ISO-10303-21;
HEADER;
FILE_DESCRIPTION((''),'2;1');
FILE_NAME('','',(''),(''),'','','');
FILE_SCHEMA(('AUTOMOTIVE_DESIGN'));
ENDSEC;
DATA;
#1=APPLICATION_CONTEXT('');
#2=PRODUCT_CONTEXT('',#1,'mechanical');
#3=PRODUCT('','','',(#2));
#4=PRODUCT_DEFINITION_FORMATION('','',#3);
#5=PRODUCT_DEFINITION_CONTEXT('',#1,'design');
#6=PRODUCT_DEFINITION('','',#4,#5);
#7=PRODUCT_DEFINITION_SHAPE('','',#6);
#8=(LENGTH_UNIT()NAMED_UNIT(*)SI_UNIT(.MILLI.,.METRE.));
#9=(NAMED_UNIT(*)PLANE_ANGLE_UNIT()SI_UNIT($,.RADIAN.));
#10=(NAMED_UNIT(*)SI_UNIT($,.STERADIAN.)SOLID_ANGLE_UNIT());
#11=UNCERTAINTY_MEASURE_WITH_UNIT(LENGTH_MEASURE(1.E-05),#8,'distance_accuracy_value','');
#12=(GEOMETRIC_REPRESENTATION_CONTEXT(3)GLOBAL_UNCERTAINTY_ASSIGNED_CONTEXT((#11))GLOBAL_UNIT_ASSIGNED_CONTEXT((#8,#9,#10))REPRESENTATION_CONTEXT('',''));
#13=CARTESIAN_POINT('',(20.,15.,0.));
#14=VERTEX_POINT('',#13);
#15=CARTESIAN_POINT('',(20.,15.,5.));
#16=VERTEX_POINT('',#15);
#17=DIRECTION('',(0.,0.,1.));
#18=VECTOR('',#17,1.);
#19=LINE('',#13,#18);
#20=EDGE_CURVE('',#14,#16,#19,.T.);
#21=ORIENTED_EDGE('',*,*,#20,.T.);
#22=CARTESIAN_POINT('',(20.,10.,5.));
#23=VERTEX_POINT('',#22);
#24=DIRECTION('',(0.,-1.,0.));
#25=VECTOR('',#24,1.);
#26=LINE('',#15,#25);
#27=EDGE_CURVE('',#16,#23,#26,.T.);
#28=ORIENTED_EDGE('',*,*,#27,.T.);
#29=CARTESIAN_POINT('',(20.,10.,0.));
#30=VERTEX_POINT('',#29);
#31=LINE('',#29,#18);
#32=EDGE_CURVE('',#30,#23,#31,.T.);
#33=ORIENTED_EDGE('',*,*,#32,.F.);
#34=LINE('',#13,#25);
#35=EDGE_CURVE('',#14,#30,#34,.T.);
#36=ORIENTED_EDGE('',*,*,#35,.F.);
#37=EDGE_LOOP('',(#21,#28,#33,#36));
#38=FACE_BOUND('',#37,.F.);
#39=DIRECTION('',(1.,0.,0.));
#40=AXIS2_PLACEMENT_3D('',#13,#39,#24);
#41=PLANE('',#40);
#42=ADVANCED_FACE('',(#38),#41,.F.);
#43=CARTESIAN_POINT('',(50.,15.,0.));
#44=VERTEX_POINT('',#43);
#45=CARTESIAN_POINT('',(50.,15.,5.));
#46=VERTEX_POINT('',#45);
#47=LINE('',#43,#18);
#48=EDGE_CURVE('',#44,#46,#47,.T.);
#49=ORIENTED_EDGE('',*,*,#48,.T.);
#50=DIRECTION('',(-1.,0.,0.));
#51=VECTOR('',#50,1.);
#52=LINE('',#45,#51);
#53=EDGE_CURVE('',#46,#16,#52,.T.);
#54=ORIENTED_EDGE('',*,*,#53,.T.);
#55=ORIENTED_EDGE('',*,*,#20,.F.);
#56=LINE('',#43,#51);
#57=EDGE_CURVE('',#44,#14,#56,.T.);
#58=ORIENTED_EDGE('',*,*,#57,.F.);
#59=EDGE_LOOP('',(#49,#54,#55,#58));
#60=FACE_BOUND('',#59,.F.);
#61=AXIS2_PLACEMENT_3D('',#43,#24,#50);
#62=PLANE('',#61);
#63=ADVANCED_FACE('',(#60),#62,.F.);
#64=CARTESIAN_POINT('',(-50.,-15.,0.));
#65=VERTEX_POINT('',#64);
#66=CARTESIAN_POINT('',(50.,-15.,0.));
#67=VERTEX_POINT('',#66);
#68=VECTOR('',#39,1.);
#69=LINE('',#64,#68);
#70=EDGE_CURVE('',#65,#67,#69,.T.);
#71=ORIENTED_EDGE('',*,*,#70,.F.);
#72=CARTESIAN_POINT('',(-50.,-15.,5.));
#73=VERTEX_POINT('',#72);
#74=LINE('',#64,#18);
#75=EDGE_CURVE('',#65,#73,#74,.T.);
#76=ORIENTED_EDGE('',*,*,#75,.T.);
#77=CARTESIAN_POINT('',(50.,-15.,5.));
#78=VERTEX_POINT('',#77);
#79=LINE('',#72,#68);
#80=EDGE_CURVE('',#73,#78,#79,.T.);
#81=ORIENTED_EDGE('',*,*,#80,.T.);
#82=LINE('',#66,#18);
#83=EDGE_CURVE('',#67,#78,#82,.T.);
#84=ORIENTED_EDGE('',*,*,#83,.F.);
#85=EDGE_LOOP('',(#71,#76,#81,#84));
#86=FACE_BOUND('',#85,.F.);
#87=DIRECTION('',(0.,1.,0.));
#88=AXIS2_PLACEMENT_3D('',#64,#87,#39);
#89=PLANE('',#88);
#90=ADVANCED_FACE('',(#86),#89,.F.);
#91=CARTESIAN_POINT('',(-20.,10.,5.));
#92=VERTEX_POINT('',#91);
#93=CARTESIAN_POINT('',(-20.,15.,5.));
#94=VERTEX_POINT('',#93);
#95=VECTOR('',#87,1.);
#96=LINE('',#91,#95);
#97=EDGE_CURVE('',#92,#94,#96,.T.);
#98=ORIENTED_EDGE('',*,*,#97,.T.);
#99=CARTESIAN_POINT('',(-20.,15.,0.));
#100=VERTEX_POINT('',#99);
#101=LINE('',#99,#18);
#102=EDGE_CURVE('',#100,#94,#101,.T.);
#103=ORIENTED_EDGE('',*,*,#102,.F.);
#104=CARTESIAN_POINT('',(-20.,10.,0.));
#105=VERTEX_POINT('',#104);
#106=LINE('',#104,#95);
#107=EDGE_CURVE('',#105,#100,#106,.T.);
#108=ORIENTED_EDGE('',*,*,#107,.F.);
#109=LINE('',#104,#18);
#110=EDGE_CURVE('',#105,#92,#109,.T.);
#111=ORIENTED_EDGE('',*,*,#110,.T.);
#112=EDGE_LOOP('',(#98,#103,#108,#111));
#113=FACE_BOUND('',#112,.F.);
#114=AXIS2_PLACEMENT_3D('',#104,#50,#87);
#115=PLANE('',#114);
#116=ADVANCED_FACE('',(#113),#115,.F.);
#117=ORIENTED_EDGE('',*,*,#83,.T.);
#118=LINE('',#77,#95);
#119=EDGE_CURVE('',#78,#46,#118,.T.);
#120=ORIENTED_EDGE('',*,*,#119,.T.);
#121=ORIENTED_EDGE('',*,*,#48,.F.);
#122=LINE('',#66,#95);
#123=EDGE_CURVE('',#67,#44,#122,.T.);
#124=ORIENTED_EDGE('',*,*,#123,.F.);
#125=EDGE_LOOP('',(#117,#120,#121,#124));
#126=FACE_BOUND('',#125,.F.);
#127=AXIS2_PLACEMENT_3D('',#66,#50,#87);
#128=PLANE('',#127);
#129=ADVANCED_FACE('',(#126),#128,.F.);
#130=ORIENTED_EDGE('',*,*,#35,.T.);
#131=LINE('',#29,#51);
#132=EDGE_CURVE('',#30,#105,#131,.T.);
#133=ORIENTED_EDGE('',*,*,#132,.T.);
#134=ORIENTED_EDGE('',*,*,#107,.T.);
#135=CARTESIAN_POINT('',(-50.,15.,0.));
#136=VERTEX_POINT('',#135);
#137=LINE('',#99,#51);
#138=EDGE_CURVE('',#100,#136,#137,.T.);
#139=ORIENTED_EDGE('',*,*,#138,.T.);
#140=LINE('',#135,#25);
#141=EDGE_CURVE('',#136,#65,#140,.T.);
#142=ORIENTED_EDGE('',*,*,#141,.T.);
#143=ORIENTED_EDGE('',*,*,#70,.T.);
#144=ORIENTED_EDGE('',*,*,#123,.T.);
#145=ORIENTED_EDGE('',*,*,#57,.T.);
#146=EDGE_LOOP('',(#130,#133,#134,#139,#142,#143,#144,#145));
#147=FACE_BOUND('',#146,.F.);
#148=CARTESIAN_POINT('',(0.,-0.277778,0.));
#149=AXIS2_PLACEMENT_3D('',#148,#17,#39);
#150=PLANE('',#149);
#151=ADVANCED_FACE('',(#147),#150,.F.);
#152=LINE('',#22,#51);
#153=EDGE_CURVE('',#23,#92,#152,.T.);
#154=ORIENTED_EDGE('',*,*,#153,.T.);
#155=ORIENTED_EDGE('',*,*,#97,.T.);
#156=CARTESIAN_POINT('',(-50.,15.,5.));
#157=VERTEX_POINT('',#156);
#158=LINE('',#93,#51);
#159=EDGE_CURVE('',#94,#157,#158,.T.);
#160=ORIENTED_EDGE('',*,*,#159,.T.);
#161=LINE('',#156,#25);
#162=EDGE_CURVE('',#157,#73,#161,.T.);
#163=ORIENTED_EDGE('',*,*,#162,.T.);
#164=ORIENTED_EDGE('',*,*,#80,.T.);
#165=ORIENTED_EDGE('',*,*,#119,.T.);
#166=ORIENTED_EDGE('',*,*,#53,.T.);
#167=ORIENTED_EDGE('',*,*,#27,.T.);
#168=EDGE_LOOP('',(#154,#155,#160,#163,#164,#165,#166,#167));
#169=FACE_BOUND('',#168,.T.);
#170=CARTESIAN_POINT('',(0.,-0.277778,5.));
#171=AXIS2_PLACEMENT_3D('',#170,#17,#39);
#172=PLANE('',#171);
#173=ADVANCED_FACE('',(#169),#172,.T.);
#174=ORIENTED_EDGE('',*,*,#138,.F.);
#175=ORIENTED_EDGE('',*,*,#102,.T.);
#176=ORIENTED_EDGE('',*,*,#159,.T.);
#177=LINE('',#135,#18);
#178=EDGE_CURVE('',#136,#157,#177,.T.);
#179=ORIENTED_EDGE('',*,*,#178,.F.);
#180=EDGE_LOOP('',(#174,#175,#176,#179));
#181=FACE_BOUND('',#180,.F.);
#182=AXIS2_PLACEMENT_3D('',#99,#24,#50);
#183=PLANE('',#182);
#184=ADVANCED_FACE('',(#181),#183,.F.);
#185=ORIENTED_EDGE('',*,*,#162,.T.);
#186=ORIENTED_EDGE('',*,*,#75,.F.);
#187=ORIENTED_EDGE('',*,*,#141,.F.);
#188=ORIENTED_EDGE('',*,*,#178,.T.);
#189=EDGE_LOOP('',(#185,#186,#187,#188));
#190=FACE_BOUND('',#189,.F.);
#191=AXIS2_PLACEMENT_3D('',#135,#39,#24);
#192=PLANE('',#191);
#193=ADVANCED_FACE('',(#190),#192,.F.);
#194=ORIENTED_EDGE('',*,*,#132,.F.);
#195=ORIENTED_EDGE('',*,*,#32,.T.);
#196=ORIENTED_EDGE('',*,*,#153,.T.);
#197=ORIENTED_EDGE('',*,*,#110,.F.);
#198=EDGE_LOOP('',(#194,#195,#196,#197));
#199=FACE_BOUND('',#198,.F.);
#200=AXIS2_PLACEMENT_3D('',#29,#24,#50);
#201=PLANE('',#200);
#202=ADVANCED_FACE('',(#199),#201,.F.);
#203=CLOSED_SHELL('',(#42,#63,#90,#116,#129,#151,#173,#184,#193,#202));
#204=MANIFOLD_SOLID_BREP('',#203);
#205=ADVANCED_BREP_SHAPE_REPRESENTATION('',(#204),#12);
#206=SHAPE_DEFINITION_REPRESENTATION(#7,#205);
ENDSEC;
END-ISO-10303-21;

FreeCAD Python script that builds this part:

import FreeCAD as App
import Part
import Sketcher

V = App.Vector

doc = App.newDocument("Part")
body = doc.addObject("PartDesign::Body", "Body")

sketch1 = body.newObject("Sketcher::SketchObject", "Sketch")
sketch1.AttachmentSupport = (doc.getObject("XY_Plane"), [""])
sketch1.MapMode = "FlatFace"
sketch1.addGeometry([
    Part.LineSegment(V(-50, -15, 0), V(50, -15, 0)),
    Part.LineSegment(V(50, -15, 0), V(50, 15, 0)),
    Part.LineSegment(V(50, 15, 0), V(20, 15, 0)),
    Part.LineSegment(V(20, 15, 0), V(20, 10, 0)),
    Part.LineSegment(V(20, 10, 0), V(-20, 10, 0)),
    Part.LineSegment(V(-20, 10, 0), V(-20, 15, 0)),
    Part.LineSegment(V(-20, 15, 0), V(-50, 15, 0)),
    Part.LineSegment(V(-50, 15, 0), V(-50, -15, 0)),
], False)
sketch1.addConstraint([
    Sketcher.Constraint("Coincident", 0, 2, 1, 1),
    Sketcher.Constraint("Coincident", 1, 2, 2, 1),
    Sketcher.Constraint("Coincident", 2, 2, 3, 1),
    Sketcher.Constraint("Coincident", 3, 2, 4, 1),
    Sketcher.Constraint("Coincident", 4, 2, 5, 1),
    Sketcher.Constraint("Coincident", 5, 2, 6, 1),
    Sketcher.Constraint("Coincident", 6, 2, 7, 1),
    Sketcher.Constraint("Coincident", 7, 2, 0, 1),
    Sketcher.Constraint("Horizontal", 0),
    Sketcher.Constraint("Vertical", 1),
    Sketcher.Constraint("Horizontal", 2),
    Sketcher.Constraint("Vertical", 3),
    Sketcher.Constraint("Horizontal", 4),
    Sketcher.Constraint("Vertical", 5),
    Sketcher.Constraint("Horizontal", 6),
    Sketcher.Constraint("Vertical", 7),
    Sketcher.Constraint("Symmetric", 0, 2, 6, 2, -1, 1),
    Sketcher.Constraint("Symmetric", 2, 2, 5, 2, -2),
    Sketcher.Constraint("Equal", 6, 1),
    Sketcher.Constraint("DistanceX", 0, 1, 0, 2, 100.0),
    Sketcher.Constraint("DistanceX", 2, 2, 2, 1, 30.0),
    Sketcher.Constraint("DistanceY", 3, 2, 3, 1, 5.0),
])
pad1 = body.newObject("PartDesign::Pad", "Pad")
pad1.Profile = sketch1
pad1.Length = 5

doc.recompute()
